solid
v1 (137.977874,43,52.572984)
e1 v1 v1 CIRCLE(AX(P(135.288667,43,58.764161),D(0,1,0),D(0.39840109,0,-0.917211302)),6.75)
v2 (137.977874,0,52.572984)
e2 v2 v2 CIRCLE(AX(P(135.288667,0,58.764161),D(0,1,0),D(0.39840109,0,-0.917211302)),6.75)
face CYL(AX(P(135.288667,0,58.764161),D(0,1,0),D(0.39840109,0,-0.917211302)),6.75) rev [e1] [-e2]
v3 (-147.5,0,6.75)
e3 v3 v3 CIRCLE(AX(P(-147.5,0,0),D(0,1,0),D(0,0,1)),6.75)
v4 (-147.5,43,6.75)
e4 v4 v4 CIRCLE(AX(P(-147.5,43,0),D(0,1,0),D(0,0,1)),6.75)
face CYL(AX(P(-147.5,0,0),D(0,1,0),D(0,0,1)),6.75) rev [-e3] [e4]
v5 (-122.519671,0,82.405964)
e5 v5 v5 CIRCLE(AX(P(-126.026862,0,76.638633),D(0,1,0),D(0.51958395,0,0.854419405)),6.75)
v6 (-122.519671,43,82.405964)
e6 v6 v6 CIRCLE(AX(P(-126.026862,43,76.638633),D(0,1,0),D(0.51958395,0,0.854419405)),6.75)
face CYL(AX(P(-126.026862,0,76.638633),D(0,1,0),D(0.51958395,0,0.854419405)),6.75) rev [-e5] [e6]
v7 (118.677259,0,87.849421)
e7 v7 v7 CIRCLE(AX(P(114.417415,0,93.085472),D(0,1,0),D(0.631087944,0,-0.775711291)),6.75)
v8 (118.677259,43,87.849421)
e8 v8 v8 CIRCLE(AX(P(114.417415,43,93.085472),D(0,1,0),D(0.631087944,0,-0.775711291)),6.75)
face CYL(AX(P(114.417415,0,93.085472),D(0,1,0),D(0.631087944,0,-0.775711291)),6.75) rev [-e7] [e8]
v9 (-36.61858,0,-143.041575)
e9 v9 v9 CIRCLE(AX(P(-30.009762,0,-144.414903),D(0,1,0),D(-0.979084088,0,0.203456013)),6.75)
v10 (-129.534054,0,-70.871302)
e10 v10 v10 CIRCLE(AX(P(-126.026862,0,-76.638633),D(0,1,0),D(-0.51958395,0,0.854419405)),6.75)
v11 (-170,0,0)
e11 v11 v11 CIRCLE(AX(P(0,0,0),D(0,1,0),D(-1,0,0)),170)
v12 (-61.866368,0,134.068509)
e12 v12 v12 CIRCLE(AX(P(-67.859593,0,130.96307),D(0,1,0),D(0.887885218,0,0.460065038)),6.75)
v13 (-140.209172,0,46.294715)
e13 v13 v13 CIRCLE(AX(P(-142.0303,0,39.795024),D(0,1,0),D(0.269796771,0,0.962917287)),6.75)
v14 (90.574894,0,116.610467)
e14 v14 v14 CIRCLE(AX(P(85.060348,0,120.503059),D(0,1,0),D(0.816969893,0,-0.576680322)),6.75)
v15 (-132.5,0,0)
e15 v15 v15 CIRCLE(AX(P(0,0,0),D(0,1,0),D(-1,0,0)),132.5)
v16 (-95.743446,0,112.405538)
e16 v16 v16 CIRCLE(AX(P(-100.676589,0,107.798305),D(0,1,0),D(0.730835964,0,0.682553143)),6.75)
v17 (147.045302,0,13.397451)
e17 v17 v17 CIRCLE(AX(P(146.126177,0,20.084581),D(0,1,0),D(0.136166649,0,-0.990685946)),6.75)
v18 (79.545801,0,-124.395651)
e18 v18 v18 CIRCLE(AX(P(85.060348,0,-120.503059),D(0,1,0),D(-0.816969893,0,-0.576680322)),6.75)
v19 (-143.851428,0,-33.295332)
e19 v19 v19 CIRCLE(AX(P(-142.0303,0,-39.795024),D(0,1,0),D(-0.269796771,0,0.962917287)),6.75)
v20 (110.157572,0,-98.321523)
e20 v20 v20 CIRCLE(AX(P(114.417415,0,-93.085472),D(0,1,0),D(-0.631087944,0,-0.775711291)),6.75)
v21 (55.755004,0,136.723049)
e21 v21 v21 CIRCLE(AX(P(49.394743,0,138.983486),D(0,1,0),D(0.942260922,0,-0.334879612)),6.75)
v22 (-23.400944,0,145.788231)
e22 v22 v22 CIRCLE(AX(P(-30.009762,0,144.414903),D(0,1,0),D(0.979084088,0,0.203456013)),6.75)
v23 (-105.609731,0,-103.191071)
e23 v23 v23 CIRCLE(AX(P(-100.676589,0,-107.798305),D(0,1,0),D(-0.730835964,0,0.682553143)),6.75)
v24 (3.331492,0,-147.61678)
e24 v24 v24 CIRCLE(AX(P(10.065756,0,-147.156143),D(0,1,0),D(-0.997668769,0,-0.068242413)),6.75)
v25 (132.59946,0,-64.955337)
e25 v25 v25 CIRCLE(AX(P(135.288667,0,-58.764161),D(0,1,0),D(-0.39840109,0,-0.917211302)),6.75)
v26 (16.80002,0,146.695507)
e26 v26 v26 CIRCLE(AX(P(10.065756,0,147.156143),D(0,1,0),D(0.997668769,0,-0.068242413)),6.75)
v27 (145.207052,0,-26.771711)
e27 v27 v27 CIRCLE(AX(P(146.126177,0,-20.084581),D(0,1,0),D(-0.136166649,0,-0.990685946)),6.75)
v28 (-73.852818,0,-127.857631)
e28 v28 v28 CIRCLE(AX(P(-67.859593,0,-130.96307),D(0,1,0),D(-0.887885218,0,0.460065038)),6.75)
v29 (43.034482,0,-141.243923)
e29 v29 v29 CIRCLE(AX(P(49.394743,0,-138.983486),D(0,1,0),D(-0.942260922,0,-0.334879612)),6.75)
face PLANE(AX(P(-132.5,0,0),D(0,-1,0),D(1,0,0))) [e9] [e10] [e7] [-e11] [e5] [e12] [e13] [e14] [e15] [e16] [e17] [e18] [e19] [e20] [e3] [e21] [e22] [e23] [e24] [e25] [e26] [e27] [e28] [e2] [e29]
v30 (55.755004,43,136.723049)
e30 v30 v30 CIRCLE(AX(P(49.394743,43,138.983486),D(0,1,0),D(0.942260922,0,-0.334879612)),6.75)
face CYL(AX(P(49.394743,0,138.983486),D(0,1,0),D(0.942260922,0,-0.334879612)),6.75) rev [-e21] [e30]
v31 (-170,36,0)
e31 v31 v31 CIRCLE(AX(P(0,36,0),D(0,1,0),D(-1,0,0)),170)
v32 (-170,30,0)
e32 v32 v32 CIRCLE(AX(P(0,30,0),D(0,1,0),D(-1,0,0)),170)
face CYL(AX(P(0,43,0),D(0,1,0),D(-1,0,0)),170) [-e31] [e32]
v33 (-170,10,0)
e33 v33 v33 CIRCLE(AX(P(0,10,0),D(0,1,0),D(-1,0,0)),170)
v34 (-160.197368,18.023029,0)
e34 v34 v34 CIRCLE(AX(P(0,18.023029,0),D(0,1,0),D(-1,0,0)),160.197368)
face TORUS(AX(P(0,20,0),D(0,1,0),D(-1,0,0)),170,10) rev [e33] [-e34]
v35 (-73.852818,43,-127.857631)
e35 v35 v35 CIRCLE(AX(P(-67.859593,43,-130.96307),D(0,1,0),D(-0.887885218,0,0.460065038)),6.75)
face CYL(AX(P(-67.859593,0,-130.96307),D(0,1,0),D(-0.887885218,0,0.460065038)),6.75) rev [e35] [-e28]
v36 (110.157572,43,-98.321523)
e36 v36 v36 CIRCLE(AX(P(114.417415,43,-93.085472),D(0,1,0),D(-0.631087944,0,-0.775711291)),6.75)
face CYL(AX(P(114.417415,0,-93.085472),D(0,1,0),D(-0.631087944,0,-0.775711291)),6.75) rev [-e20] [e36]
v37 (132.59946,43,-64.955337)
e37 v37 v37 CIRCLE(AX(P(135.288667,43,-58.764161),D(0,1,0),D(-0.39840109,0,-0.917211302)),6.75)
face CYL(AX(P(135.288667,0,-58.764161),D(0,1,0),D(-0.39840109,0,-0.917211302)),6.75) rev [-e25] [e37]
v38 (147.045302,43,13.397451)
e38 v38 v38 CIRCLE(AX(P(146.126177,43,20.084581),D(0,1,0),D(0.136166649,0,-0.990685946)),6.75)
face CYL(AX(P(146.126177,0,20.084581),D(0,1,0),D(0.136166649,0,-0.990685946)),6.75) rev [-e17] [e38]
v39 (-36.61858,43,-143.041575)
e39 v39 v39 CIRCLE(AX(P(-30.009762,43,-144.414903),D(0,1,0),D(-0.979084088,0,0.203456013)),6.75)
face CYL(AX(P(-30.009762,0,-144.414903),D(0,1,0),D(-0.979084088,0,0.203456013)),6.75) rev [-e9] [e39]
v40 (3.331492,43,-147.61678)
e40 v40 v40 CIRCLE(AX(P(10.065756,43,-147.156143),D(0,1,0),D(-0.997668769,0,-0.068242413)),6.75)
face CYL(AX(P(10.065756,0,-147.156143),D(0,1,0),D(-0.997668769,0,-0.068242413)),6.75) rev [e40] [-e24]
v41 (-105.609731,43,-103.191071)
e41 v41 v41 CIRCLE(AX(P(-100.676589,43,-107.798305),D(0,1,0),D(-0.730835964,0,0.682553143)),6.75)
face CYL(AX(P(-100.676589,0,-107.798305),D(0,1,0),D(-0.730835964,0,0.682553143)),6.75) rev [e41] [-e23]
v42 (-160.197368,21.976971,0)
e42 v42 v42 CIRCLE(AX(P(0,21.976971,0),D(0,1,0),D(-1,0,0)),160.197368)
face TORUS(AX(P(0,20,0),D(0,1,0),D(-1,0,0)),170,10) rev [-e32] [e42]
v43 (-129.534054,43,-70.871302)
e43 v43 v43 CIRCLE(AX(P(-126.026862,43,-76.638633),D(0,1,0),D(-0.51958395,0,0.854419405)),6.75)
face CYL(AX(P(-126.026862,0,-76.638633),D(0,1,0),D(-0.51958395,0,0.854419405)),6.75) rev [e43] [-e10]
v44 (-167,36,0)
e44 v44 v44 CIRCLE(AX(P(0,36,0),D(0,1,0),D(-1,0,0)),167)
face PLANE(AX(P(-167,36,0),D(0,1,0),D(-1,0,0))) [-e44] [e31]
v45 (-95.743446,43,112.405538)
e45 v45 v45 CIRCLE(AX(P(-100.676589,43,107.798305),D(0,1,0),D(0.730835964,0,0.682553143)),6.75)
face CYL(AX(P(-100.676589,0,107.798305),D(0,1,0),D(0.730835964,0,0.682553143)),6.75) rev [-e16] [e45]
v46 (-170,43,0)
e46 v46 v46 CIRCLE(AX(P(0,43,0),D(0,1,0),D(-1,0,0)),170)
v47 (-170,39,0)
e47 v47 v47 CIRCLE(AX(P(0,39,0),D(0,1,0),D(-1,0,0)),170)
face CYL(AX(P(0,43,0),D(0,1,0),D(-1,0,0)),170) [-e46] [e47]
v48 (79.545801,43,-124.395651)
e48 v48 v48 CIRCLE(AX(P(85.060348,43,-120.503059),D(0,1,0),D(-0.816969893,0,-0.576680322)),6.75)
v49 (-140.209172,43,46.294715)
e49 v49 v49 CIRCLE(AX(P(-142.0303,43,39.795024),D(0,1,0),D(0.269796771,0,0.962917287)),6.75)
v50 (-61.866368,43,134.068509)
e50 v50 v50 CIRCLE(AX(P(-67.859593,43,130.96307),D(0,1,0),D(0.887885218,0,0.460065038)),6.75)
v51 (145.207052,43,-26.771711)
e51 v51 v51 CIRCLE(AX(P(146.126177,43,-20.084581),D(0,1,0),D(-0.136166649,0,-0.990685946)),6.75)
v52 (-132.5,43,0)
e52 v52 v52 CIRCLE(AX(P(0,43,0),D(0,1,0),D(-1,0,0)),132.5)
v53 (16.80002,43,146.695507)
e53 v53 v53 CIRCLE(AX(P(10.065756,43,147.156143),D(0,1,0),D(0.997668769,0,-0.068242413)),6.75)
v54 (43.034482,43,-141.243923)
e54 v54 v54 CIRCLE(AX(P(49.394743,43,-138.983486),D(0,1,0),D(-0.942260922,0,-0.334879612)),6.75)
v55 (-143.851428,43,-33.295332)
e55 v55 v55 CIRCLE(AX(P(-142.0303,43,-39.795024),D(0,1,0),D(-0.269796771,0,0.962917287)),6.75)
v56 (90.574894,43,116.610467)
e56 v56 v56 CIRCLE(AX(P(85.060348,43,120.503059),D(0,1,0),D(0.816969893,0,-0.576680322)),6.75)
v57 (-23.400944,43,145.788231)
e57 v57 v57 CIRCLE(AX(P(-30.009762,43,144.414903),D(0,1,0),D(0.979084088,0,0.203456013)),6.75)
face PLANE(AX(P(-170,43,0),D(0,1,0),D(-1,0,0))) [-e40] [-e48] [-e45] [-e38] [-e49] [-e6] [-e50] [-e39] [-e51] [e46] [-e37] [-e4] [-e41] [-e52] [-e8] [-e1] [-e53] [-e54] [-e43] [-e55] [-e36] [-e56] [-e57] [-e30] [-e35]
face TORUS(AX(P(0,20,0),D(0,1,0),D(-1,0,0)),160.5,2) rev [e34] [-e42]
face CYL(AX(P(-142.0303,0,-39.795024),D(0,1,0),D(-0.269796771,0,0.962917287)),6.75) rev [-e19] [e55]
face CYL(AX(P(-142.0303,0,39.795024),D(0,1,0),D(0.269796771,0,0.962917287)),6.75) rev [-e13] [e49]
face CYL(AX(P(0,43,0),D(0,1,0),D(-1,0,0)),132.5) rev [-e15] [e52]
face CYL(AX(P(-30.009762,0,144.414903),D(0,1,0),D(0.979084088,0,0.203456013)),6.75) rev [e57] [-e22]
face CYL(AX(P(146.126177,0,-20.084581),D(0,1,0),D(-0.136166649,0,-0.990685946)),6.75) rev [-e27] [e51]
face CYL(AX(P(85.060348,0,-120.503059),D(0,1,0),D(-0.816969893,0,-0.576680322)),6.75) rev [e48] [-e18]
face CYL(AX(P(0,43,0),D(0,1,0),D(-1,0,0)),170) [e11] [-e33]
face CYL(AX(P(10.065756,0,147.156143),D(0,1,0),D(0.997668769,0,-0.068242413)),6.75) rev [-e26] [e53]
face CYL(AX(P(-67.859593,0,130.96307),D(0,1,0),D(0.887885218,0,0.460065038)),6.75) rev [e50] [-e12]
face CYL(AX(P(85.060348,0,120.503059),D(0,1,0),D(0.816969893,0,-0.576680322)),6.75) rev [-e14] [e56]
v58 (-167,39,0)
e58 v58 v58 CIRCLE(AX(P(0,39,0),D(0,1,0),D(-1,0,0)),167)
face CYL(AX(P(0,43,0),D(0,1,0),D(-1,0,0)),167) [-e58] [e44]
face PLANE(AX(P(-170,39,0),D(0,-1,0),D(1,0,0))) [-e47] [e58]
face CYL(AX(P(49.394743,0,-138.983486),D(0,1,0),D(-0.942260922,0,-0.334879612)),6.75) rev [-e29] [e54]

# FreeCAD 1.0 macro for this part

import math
import FreeCAD as App
import Part
import Sketcher
Q = App.Units.Quantity

doc = App.newDocument("Part")
params = doc.addObject("Spreadsheet::Sheet", "Params")
for row, (alias, value) in enumerate([
    ("sketch1_radius", "10 mm"),
    ("sketch1_radius2", "2 mm"),
    ("sketch1_width", "3 mm"),
    ("sketch1_height", "4 mm"),
    ("sketch1_height2", "6 mm"),
    ("revolution_angle", "360 deg"),
    ("sketch2_diameter", "13.5 mm"),
], start=1):
    params.set(f"A{row}", alias)
    params.set(f"B{row}", "=" + value)
    params.setAlias(f"B{row}", alias)

body = doc.addObject("PartDesign::Body", "Body")

# Sketch on XY plane
sketch1 = doc.addObject("Sketcher::SketchObject", "Sketch")
body.addObject(sketch1)
sketch1.AttachmentSupport = (doc.XY_Plane, [""])
sketch1.MapMode = "FlatFace"
sketch1.addGeometry([
    Part.LineSegment(App.Vector(-170, 43, 0), App.Vector(-170, 39, 0)),  # 0
    Part.LineSegment(App.Vector(-170, 39, 0), App.Vector(-167, 39, 0)),  # 1
    Part.LineSegment(App.Vector(-167, 39, 0), App.Vector(-167, 36, 0)),  # 2
    Part.LineSegment(App.Vector(-167, 36, 0), App.Vector(-170, 36, 0)),  # 3
    Part.LineSegment(App.Vector(-170, 36, 0), App.Vector(-170, 30, 0)),  # 4
    Part.ArcOfCircle(Part.Circle(App.Vector(-170, 20, 0), App.Vector(0, 0, 1), 10), math.radians(11), math.radians(90)),  # 5
    Part.ArcOfCircle(Part.Circle(App.Vector(-160.5, 20, 0), App.Vector(0, 0, 1), 2), math.radians(-81), math.radians(81)),  # 6
    Part.ArcOfCircle(Part.Circle(App.Vector(-170, 20, 0), App.Vector(0, 0, 1), 10), math.radians(-90), math.radians(-11)),  # 7
    Part.LineSegment(App.Vector(-170, 10, 0), App.Vector(-170, 0, 0)),  # 8
    Part.LineSegment(App.Vector(-170, 0, 0), App.Vector(-132.5, 0, 0)),  # 9
    Part.LineSegment(App.Vector(-132.5, 0, 0), App.Vector(-132.5, 43, 0)),  # 10
    Part.LineSegment(App.Vector(-132.5, 43, 0), App.Vector(-170, 43, 0)),  # 11
], False)
sketch1.addConstraint([
    Sketcher.Constraint("Coincident", 0, 2, 1, 1),
    Sketcher.Constraint("Coincident", 1, 2, 2, 1),
    Sketcher.Constraint("Coincident", 2, 2, 3, 1),
    Sketcher.Constraint("Coincident", 3, 2, 4, 1),
    Sketcher.Constraint("Coincident", 4, 2, 5, 2),
    Sketcher.Constraint("Coincident", 5, 1, 6, 2),
    Sketcher.Constraint("Coincident", 6, 1, 7, 2),
    Sketcher.Constraint("Coincident", 7, 1, 8, 1),
    Sketcher.Constraint("Coincident", 8, 2, 9, 1),
    Sketcher.Constraint("Coincident", 9, 2, 10, 1),
    Sketcher.Constraint("Coincident", 10, 2, 11, 1),
    Sketcher.Constraint("Coincident", 11, 2, 0, 1),
    Sketcher.Constraint("Vertical", 0),
    Sketcher.Constraint("Horizontal", 1),
    Sketcher.Constraint("Vertical", 2),
    Sketcher.Constraint("Horizontal", 3),
    Sketcher.Constraint("Vertical", 4),
    Sketcher.Constraint("Vertical", 8),
    Sketcher.Constraint("Horizontal", 9),
    Sketcher.Constraint("Vertical", 10),
    Sketcher.Constraint("Horizontal", 11),
    Sketcher.Constraint("Coincident", 7, 3, 5, 3),
    Sketcher.Constraint("Equal", 5, 7),
    Sketcher.Constraint("PointOnObject", 8, 2, -1),
    Sketcher.Constraint("Horizontal", 5, 3, 6, 3),
    Sketcher.Constraint("Vertical", 7, 3, 0, 2),
    Sketcher.Constraint("Vertical", 0, 2, 3, 2),
    Sketcher.Constraint("Vertical", 4, 2, 7, 1),
    Sketcher.Constraint("Equal", 3, 2),
    Sketcher.Constraint("Radius", 5, Q("10 mm")),
    Sketcher.Constraint("Radius", 6, Q("2 mm")),
    Sketcher.Constraint("DistanceX", 1, 1, 1, 2, Q("3 mm")),
    Sketcher.Constraint("DistanceY", 0, 2, 0, 1, Q("4 mm")),
    Sketcher.Constraint("DistanceY", 4, 2, 4, 1, Q("6 mm")),
    Sketcher.Constraint("DistanceY", 8, 2, 8, 1, Q("10 mm")),
    Sketcher.Constraint("DistanceX", 9, 1, 9, 2, Q("37.5 mm")),
    Sketcher.Constraint("DistanceX", 5, 3, -1, 1, Q("170 mm")),
    Sketcher.Constraint("DistanceX", 6, 3, 9, 2, Q("28 mm")),
])
sketch1.setExpression("Constraints[29]", "Params.sketch1_radius")
sketch1.setExpression("Constraints[30]", "Params.sketch1_radius2")
sketch1.setExpression("Constraints[31]", "Params.sketch1_width")
sketch1.setExpression("Constraints[32]", "Params.sketch1_height")
sketch1.setExpression("Constraints[33]", "Params.sketch1_height2")
revolution = doc.addObject("PartDesign::Revolution", "Revolution")
body.addObject(revolution)
revolution.Profile = sketch1
revolution.ReferenceAxis = (sketch1, ["V_Axis"])
revolution.setExpression("Angle", "Params.revolution_angle")

# Sketch on XZ plane
sketch2 = doc.addObject("Sketcher::SketchObject", "Sketch001")
body.addObject(sketch2)
sketch2.AttachmentSupport = (doc.XZ_Plane, [""])
sketch2.MapMode = "FlatFace"
sketch2.AttachmentOffset = App.Placement(App.Vector(0, 0, -43), App.Rotation())
sketch2.addGeometry(Part.Circle(App.Vector(-148, 0, 0), App.Vector(0, 0, 1), 7), False)
sketch2.addConstraint([
    Sketcher.Constraint("PointOnObject", 0, 3, -1),
    Sketcher.Constraint("Diameter", 0, Q("13.5 mm")),
    Sketcher.Constraint("DistanceX", 0, 3, -1, 1, Q("147.5 mm")),
])
sketch2.setExpression("Constraints[1]", "Params.sketch2_diameter")
pocket1 = doc.addObject("PartDesign::Pocket", "Pocket")
body.addObject(pocket1)
pocket1.Profile = sketch2
pocket1.Type = "ThroughAll"
pocket1.Reversed = True
doc.recompute()

polarpattern = doc.addObject("PartDesign::PolarPattern", "PolarPattern")
body.addObject(polarpattern)
polarpattern.Originals = [pocket1]
polarpattern.Axis = (doc.Y_Axis, [""])
polarpattern.Angle = 360
polarpattern.Occurrences = 23
body.Tip = polarpattern

doc.recompute()
